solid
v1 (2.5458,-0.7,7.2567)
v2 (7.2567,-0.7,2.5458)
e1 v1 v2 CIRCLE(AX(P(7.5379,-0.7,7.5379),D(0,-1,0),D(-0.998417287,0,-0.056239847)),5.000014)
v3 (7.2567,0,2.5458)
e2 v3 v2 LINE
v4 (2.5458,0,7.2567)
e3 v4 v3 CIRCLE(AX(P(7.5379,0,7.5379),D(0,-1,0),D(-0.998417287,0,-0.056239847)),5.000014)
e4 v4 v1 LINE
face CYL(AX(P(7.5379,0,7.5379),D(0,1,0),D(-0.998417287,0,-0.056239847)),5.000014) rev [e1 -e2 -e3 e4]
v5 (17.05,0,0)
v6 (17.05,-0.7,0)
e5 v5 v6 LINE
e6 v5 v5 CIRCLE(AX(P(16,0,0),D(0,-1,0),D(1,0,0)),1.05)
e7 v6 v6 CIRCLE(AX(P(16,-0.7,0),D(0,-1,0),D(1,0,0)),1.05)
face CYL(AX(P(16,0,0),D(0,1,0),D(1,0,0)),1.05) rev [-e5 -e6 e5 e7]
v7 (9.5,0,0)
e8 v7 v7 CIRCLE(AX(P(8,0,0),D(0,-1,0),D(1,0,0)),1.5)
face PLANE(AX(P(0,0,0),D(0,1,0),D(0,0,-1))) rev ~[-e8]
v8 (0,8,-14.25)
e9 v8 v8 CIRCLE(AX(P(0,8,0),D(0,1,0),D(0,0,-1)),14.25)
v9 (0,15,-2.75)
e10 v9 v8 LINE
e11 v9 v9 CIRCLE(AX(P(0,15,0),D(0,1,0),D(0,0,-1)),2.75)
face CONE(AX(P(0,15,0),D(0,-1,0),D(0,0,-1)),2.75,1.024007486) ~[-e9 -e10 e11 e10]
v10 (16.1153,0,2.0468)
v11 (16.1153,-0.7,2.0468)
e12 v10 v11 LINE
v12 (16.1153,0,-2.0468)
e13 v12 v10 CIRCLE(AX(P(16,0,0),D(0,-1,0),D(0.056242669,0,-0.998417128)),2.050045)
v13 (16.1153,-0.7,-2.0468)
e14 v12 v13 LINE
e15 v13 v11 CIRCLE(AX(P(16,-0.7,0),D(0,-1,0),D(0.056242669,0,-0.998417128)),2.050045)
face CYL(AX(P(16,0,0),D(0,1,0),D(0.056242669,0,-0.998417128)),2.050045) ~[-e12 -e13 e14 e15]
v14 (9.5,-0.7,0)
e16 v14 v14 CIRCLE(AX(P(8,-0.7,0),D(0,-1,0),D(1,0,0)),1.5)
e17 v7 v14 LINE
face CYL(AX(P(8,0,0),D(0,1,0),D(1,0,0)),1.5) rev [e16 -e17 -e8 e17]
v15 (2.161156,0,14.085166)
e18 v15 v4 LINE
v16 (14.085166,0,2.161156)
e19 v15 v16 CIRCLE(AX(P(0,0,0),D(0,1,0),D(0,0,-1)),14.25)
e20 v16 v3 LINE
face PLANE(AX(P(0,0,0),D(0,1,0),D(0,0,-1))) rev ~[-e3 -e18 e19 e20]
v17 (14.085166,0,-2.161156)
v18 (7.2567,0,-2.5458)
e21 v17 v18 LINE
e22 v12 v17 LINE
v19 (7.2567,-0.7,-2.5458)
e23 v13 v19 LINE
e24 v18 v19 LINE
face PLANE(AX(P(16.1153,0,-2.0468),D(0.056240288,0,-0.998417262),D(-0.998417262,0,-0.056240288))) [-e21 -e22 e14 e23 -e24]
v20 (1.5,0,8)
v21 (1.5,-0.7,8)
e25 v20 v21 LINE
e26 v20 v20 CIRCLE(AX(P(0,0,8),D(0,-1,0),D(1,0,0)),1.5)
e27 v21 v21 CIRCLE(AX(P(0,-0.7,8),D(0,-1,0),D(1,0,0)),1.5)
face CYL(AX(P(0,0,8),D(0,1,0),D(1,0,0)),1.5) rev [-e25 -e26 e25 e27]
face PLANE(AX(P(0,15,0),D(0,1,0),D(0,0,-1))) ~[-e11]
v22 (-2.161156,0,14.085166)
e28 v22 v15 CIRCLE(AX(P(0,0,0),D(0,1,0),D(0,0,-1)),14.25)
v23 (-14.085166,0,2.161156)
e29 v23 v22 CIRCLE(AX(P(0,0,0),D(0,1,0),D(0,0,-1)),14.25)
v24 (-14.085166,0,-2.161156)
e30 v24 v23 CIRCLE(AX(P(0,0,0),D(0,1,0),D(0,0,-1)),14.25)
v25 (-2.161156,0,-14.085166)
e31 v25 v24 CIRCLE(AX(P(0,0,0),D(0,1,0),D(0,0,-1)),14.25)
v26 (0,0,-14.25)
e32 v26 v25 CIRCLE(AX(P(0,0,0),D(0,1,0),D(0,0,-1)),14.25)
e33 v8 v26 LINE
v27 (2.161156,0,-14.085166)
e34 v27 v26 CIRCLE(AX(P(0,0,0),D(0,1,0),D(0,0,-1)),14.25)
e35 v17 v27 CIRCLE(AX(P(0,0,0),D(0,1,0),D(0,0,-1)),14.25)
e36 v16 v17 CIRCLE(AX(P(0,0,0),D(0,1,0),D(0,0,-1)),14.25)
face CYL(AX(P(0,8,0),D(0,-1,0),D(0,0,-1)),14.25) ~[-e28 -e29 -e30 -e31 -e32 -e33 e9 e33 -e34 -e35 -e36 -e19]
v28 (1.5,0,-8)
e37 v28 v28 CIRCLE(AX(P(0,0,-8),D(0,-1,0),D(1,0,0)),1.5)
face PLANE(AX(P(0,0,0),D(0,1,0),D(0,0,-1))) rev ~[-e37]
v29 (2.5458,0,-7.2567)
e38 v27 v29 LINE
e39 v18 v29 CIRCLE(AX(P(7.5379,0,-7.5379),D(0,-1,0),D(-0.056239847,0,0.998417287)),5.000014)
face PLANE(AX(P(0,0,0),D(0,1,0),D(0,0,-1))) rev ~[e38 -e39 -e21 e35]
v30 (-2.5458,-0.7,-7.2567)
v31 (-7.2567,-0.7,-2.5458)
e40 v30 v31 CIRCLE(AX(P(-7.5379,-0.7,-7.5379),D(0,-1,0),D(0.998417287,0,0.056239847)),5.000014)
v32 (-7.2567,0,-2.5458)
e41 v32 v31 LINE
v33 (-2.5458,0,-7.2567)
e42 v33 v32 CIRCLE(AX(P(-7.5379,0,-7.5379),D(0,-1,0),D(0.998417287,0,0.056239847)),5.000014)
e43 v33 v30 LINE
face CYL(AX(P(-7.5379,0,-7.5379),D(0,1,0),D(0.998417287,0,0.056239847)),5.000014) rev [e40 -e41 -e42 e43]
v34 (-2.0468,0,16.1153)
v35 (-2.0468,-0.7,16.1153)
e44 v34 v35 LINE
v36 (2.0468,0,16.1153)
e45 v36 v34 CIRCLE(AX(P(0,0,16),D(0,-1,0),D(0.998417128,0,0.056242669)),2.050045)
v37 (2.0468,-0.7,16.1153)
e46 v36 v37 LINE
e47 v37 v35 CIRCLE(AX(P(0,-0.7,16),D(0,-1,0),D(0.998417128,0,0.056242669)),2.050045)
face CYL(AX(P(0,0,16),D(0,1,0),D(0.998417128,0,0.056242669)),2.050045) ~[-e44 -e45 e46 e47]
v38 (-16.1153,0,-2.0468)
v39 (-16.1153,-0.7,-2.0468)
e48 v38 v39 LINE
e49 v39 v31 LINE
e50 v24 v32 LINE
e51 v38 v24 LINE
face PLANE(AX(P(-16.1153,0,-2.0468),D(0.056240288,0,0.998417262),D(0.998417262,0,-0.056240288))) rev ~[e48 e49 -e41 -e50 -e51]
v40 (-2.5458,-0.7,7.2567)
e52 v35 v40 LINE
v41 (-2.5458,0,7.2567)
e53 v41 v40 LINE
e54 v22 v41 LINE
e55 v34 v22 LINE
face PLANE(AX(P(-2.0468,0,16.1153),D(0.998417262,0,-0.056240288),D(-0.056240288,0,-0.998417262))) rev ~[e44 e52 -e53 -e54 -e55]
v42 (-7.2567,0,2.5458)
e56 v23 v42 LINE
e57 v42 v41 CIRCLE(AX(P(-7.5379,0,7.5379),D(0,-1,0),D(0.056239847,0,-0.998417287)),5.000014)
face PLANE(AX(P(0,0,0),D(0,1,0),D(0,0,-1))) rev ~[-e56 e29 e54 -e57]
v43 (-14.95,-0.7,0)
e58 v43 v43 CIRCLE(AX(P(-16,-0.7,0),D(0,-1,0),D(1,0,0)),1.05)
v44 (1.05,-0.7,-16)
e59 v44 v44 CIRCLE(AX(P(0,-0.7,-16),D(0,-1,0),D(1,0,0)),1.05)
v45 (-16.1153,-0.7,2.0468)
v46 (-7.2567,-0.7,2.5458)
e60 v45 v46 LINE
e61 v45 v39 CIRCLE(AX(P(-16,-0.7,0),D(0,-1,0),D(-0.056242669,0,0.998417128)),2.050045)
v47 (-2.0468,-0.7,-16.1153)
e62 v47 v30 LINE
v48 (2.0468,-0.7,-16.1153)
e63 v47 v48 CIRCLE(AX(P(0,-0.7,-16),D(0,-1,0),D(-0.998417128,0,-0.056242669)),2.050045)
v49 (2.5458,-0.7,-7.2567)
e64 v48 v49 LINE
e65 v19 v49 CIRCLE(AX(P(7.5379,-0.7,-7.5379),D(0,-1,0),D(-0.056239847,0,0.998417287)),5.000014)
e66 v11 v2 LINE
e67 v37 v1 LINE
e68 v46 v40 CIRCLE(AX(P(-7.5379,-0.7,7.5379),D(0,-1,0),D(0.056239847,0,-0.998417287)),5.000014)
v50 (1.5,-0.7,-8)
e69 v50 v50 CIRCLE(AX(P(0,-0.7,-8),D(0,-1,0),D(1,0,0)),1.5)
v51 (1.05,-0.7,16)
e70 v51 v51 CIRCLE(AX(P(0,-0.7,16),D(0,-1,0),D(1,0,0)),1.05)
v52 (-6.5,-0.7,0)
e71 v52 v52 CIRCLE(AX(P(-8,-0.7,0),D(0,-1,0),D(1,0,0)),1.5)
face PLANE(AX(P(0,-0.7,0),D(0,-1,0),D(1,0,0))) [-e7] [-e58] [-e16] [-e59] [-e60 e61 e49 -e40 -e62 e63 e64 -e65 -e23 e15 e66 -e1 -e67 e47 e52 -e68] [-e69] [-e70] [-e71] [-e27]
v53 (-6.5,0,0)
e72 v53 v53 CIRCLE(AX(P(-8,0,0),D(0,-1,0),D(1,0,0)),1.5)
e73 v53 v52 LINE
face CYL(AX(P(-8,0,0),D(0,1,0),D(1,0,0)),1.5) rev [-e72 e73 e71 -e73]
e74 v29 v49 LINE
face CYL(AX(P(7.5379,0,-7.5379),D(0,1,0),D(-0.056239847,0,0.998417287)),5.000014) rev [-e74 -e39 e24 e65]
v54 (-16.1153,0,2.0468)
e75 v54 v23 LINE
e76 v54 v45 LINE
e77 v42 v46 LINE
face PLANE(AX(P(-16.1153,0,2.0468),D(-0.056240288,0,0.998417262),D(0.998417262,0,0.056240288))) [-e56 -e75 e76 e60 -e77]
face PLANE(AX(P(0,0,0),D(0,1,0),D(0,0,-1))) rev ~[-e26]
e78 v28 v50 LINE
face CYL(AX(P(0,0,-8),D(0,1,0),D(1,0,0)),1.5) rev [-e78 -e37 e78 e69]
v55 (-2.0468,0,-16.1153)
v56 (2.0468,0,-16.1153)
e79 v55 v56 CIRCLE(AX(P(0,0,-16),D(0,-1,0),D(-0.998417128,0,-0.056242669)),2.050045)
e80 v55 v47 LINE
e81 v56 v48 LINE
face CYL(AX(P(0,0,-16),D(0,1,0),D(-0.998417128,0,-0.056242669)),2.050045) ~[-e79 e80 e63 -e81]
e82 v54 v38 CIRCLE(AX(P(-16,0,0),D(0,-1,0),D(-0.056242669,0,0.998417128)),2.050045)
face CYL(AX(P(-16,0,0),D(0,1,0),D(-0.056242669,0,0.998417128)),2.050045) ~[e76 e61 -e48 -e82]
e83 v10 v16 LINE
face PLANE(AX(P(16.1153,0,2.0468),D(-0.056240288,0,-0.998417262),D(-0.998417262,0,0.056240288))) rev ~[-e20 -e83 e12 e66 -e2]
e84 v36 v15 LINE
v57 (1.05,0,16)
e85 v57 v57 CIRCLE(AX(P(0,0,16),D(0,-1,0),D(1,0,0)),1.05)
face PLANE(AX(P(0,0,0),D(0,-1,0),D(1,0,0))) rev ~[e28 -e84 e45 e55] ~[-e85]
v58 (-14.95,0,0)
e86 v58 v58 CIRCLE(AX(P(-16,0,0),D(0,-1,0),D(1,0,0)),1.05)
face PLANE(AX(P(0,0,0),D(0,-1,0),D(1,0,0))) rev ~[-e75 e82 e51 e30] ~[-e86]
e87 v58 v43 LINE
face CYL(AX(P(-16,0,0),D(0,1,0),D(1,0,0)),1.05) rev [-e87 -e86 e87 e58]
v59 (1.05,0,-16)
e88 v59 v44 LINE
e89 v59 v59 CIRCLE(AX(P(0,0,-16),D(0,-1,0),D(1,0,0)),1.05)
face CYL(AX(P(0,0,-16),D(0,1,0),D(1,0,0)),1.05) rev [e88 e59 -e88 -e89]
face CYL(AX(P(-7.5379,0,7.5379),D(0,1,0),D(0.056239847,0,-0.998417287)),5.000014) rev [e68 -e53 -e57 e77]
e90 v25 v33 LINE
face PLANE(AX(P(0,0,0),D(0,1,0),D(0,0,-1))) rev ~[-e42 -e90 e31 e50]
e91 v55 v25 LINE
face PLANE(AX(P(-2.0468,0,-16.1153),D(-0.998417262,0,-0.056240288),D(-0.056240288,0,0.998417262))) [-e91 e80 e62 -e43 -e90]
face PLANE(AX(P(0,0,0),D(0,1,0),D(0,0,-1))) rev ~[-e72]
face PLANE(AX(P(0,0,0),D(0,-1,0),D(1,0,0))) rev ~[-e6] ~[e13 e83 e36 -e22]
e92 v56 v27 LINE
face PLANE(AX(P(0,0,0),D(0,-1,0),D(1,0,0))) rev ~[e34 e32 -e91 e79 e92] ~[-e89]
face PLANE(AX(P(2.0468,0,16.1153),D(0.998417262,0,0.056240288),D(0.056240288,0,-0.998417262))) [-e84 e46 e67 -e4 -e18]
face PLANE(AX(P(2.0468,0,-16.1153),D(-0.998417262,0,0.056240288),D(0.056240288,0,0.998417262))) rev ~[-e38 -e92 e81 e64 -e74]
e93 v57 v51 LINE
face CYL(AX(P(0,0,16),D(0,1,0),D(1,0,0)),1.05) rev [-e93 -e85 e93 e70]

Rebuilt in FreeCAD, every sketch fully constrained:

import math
import FreeCAD as App
import Part
import Sketcher

V = App.Vector
Q = App.Units.Quantity


def add_polygon(sketch, points):
    """Adds a closed chain of lines whose ends are joined by coincident constraints."""
    first, n = sketch.GeometryCount, len(points)
    for a, b in zip(points, points[1:] + points[:1]):
        sketch.addGeometry(Part.LineSegment(App.Vector(*a, 0), App.Vector(*b, 0)), False)
    for i in range(n):
        sketch.addConstraint(Sketcher.Constraint("Coincident", first + i, 2, first + (i + 1) % n, 1))

doc = App.newDocument("Part")
params = doc.addObject("Spreadsheet::Sheet", "Params")
for row, (alias, value) in enumerate([
    ("sketch1_width", "15 mm"),
    ("sketch1_width2", "8 mm"),
    ("sketch1_height", "14.25 mm"),
    ("sketch1_height2", "2.75 mm"),
    ("revolution_angle", "360 deg"),
    ("sketch2_diameter", "3 mm"),
    ("sketch2_radius", "5 mm"),
    ("sketch2_diameter2", "2.1 mm"),
    ("sketch2_radius2", "2.05 mm"),
    ("pad1_length", "0.7 mm"),
], start=1):
    params.set(f"A{row}", alias)
    params.set(f"B{row}", "=" + value)
    params.setAlias(f"B{row}", alias)

body = doc.addObject("PartDesign::Body", "Body")

sketch1 = body.newObject("Sketcher::SketchObject", "Sketch")
sketch1.AttachmentSupport = (doc.getObject("YZ_Plane"), [""])
sketch1.MapMode = "FlatFace"
add_polygon(sketch1, [(15, 0), (0, 0), (0, -14.25), (8, -14.25), (15, -2.75)])
sketch1.addConstraint([
    Sketcher.Constraint("Horizontal", 0),
    Sketcher.Constraint("Vertical", 1),
    Sketcher.Constraint("Horizontal", 2),
    Sketcher.Constraint("Vertical", 4),
    Sketcher.Constraint("Coincident", 0, 2, -1, 1),
    Sketcher.Constraint("DistanceX", 0, 2, 0, 1, Q("15 mm")),
    Sketcher.Constraint("DistanceX", 2, 1, 2, 2, Q("8 mm")),
    Sketcher.Constraint("DistanceY", 1, 2, 1, 1, Q("14.25 mm")),
    Sketcher.Constraint("DistanceY", 4, 1, 4, 2, Q("2.75 mm")),
])
sketch1.setExpression("Constraints[10]", "Params.sketch1_width")
sketch1.setExpression("Constraints[11]", "Params.sketch1_width2")
sketch1.setExpression("Constraints[12]", "Params.sketch1_height")
sketch1.setExpression("Constraints[13]", "Params.sketch1_height2")
revolution = body.newObject("PartDesign::Revolution", "Revolution")
revolution.Profile = sketch1
revolution.ReferenceAxis = (sketch1, ["H_Axis"])
revolution.setExpression("Angle", "Params.revolution_angle")

sketch2 = body.newObject("Sketcher::SketchObject", "Sketch001")
sketch2.AttachmentSupport = (doc.getObject("XZ_Plane"), [""])
sketch2.MapMode = "FlatFace"
sketch2.addGeometry([
    Part.LineSegment(V(2.5458, 7.2567, 0), V(2.0468, 16.1153, 0)),
    Part.ArcOfCircle(Part.Circle(V(0, 16, 0), V(0, 0, 1), 2.050045), math.radians(3.224169), math.radians(176.775831)),
    Part.LineSegment(V(-2.0468, 16.1153, 0), V(-2.5458, 7.2567, 0)),
    Part.ArcOfCircle(Part.Circle(V(-7.5379, 7.5379, 0), V(0, 0, 1), 5.000014), math.radians(-86.775993), math.radians(-3.224007)),
    Part.LineSegment(V(-7.2567, 2.5458, 0), V(-16.1153, 2.0468, 0)),
    Part.ArcOfCircle(Part.Circle(V(-16, 0, 0), V(0, 0, 1), 2.050045), math.radians(93.224169), math.radians(266.775831)),
    Part.LineSegment(V(-16.1153, -2.0468, 0), V(-7.2567, -2.5458, 0)),
    Part.ArcOfCircle(Part.Circle(V(-7.5379, -7.5379, 0), V(0, 0, 1), 5.000014), math.radians(3.224007), math.radians(86.775993)),
    Part.LineSegment(V(-2.5458, -7.2567, 0), V(-2.0468, -16.1153, 0)),
    Part.ArcOfCircle(Part.Circle(V(0, -16, 0), V(0, 0, 1), 2.050045), math.radians(-176.775831), math.radians(-3.224169)),
    Part.LineSegment(V(2.0468, -16.1153, 0), V(2.5458, -7.2567, 0)),
    Part.ArcOfCircle(Part.Circle(V(7.5379, -7.5379, 0), V(0, 0, 1), 5.000014), math.radians(93.224007), math.radians(176.775993)),
    Part.LineSegment(V(7.2567, -2.5458, 0), V(16.1153, -2.0468, 0)),
    Part.ArcOfCircle(Part.Circle(V(16, 0, 0), V(0, 0, 1), 2.050045), math.radians(-86.775831), math.radians(86.775831)),
    Part.LineSegment(V(16.1153, 2.0468, 0), V(7.2567, 2.5458, 0)),
    Part.ArcOfCircle(Part.Circle(V(7.5379, 7.5379, 0), V(0, 0, 1), 5.000014), math.radians(-176.775993), math.radians(-93.224007)),
    Part.Circle(V(0, -16, 0), V(0, 0, 1), 1.05),
    Part.Circle(V(0, -8, 0), V(0, 0, 1), 1.5),
    Part.Circle(V(-16, 0, 0), V(0, 0, 1), 1.05),
    Part.Circle(V(-8, 0, 0), V(0, 0, 1), 1.5),
    Part.Circle(V(8, 0, 0), V(0, 0, 1), 1.5),
    Part.Circle(V(0, 8, 0), V(0, 0, 1), 1.5),
    Part.Circle(V(16, 0, 0), V(0, 0, 1), 1.05),
    Part.Circle(V(0, 16, 0), V(0, 0, 1), 1.05),
], False)
sketch2.addConstraint([
    Sketcher.Constraint("Tangent", 0, 2, 1, 1),
    Sketcher.Constraint("Tangent", 1, 2, 2, 1),
    Sketcher.Constraint("Tangent", 2, 2, 3, 2),
    Sketcher.Constraint("Tangent", 3, 1, 4, 1),
    Sketcher.Constraint("Tangent", 4, 2, 5, 1),
    Sketcher.Constraint("Tangent", 5, 2, 6, 1),
    Sketcher.Constraint("Tangent", 6, 2, 7, 2),
    Sketcher.Constraint("Tangent", 7, 1, 8, 1),
    Sketcher.Constraint("Tangent", 8, 2, 9, 1),
    Sketcher.Constraint("Tangent", 9, 2, 10, 1),
    Sketcher.Constraint("Tangent", 10, 2, 11, 2),
    Sketcher.Constraint("Tangent", 11, 1, 12, 1),
    Sketcher.Constraint("Tangent", 12, 2, 13, 1),
    Sketcher.Constraint("Tangent", 13, 2, 14, 1),
    Sketcher.Constraint("Tangent", 14, 2, 15, 2),
    Sketcher.Constraint("Tangent", 15, 1, 0, 1),
    Sketcher.Constraint("Coincident", 16, 3, 9, 3),
    Sketcher.Constraint("Coincident", 18, 3, 5, 3),
    Sketcher.Constraint("Coincident", 22, 3, 13, 3),
    Sketcher.Constraint("Coincident", 23, 3, 1, 3),
    Sketcher.Constraint("Equal", 1, 5),
    Sketcher.Constraint("Equal", 3, 7),
    Sketcher.Constraint("Equal", 5, 9),
    Sketcher.Constraint("Equal", 7, 11),
    Sketcher.Constraint("Equal", 9, 13),
    Sketcher.Constraint("Equal", 11, 15),
    Sketcher.Constraint("Equal", 16, 18),
    Sketcher.Constraint("Equal", 17, 19),
    Sketcher.Constraint("Equal", 19, 20),
    Sketcher.Constraint("Equal", 20, 21),
    Sketcher.Constraint("Equal", 18, 22),
    Sketcher.Constraint("Equal", 22, 23),
    Sketcher.Constraint("Symmetric", 1, 3, 9, 3, -1, 1),
    Sketcher.Constraint("Symmetric", 3, 3, 11, 3, -1, 1),
    Sketcher.Constraint("Symmetric", 5, 3, 13, 3, -1, 1),
    Sketcher.Constraint("Symmetric", 7, 3, 15, 3, -1, 1),
    Sketcher.Constraint("Symmetric", 19, 3, 20, 3, -1, 1),
    Sketcher.Constraint("Symmetric", 17, 3, 21, 3, -1, 1),
    Sketcher.Constraint("Symmetric", 7, 3, 11, 3, -2),
    Sketcher.Constraint("PointOnObject", 1, 3, -2),
    Sketcher.Constraint("PointOnObject", 5, 3, -1),
    Sketcher.Constraint("PointOnObject", 17, 3, -2),
    Sketcher.Constraint("PointOnObject", 19, 3, -1),
    Sketcher.Constraint("Perpendicular", 0, 4),
    Sketcher.Constraint("Equal", 2, 4),
    Sketcher.Constraint("Diameter", 17, Q("3 mm")),
    Sketcher.Constraint("Radius", 3, Q("5 mm")),
    Sketcher.Constraint("Diameter", 16, Q("2.1 mm")),
    Sketcher.Constraint("DistanceY", -1, 1, 1, 3, Q("16 mm")),
    Sketcher.Constraint("DistanceY", 17, 3, -1, 1, Q("8 mm")),
    Sketcher.Constraint("DistanceX", 19, 3, -1, 1, Q("8 mm")),
    Sketcher.Constraint("Radius", 1, Q("2.05 mm")),
    Sketcher.Constraint("DistanceX", 3, 3, -1, 1, Q("7.538 mm")),
])
sketch2.setExpression("Constraints[45]", "Params.sketch2_diameter")
sketch2.setExpression("Constraints[46]", "Params.sketch2_radius")
sketch2.setExpression("Constraints[47]", "Params.sketch2_diameter2")
sketch2.setExpression("Constraints[51]", "Params.sketch2_radius2")
pad1 = body.newObject("PartDesign::Pad", "Pad")
pad1.Profile = sketch2
pad1.setExpression("Length", "Params.pad1_length")

doc.recompute()
